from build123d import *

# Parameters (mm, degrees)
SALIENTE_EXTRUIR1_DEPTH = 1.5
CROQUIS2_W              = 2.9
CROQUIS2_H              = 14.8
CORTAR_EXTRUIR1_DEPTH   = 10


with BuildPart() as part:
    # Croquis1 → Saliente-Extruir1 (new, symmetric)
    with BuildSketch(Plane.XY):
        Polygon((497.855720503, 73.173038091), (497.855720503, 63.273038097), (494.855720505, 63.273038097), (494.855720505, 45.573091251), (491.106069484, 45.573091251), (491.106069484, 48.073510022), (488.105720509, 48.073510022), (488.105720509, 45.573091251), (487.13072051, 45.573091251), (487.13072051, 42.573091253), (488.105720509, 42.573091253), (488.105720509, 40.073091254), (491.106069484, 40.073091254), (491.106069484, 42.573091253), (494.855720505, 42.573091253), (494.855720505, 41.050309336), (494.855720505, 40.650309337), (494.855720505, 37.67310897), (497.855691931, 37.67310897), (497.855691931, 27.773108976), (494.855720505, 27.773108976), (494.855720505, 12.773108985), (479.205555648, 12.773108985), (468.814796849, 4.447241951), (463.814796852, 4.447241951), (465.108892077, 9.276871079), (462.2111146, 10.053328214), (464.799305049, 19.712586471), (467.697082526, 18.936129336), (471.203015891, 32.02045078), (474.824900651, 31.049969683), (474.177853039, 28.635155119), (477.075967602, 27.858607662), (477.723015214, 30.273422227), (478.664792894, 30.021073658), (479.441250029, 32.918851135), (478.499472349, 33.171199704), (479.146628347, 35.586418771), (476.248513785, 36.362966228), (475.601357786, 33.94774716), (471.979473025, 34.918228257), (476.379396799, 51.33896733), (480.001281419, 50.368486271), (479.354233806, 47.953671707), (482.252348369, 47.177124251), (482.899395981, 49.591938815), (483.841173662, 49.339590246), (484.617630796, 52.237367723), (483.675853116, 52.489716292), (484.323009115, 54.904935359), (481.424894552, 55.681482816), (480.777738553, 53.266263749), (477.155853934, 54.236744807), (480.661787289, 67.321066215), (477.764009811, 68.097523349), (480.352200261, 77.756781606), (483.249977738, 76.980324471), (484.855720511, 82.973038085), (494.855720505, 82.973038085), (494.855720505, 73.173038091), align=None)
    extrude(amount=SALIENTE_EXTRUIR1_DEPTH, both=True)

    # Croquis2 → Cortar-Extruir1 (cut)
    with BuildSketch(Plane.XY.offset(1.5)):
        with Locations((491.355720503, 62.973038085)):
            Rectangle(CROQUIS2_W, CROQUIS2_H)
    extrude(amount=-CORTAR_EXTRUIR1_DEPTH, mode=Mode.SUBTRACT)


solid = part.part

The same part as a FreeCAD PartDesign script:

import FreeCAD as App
import Part
import Sketcher
Q = App.Units.Quantity

doc = App.newDocument("Part")
body = doc.addObject("PartDesign::Body", "Body")

# Sketch on XY plane
sketch1 = body.newObject("Sketcher::SketchObject", "Sketch")
sketch1.AttachmentSupport = (doc.getObject("XY_Plane"), [""])
sketch1.MapMode = "FlatFace"
sketch1.addGeometry([
    Part.LineSegment(App.Vector(497.9, 63.3, 0), App.Vector(497.9, 73.2, 0)),  # 0
    Part.LineSegment(App.Vector(497.9, 73.2, 0), App.Vector(494.9, 73.2, 0)),  # 1
    Part.LineSegment(App.Vector(494.9, 73.2, 0), App.Vector(494.9, 83, 0)),  # 2
    Part.LineSegment(App.Vector(494.9, 83, 0), App.Vector(484.9, 83, 0)),  # 3
    Part.LineSegment(App.Vector(484.9, 83, 0), App.Vector(483.2, 77, 0)),  # 4
    Part.LineSegment(App.Vector(483.2, 77, 0), App.Vector(480.4, 77.8, 0)),  # 5
    Part.LineSegment(App.Vector(480.4, 77.8, 0), App.Vector(477.8, 68.1, 0)),  # 6
    Part.LineSegment(App.Vector(477.8, 68.1, 0), App.Vector(480.7, 67.3, 0)),  # 7
    Part.LineSegment(App.Vector(480.7, 67.3, 0), App.Vector(477.2, 54.2, 0)),  # 8
    Part.LineSegment(App.Vector(477.2, 54.2, 0), App.Vector(480.8, 53.3, 0)),  # 9
    Part.LineSegment(App.Vector(480.8, 53.3, 0), App.Vector(481.4, 55.7, 0)),  # 10
    Part.LineSegment(App.Vector(481.4, 55.7, 0), App.Vector(484.3, 54.9, 0)),  # 11
    Part.LineSegment(App.Vector(484.3, 54.9, 0), App.Vector(483.7, 52.5, 0)),  # 12
    Part.LineSegment(App.Vector(483.7, 52.5, 0), App.Vector(484.6, 52.2, 0)),  # 13
    Part.LineSegment(App.Vector(484.6, 52.2, 0), App.Vector(483.8, 49.3, 0)),  # 14
    Part.LineSegment(App.Vector(483.8, 49.3, 0), App.Vector(482.9, 49.6, 0)),  # 15
    Part.LineSegment(App.Vector(482.9, 49.6, 0), App.Vector(482.3, 47.2, 0)),  # 16
    Part.LineSegment(App.Vector(482.3, 47.2, 0), App.Vector(479.4, 48, 0)),  # 17
    Part.LineSegment(App.Vector(479.4, 48, 0), App.Vector(480, 50.4, 0)),  # 18
    Part.LineSegment(App.Vector(480, 50.4, 0), App.Vector(476.4, 51.3, 0)),  # 19
    Part.LineSegment(App.Vector(476.4, 51.3, 0), App.Vector(472, 34.9, 0)),  # 20
    Part.LineSegment(App.Vector(472, 34.9, 0), App.Vector(475.6, 33.9, 0)),  # 21
    Part.LineSegment(App.Vector(475.6, 33.9, 0), App.Vector(476.2, 36.4, 0)),  # 22
    Part.LineSegment(App.Vector(476.2, 36.4, 0), App.Vector(479.1, 35.6, 0)),  # 23
    Part.LineSegment(App.Vector(479.1, 35.6, 0), App.Vector(478.5, 33.2, 0)),  # 24
    Part.LineSegment(App.Vector(478.5, 33.2, 0), App.Vector(479.4, 32.9, 0)),  # 25
    Part.LineSegment(App.Vector(479.4, 32.9, 0), App.Vector(478.7, 30, 0)),  # 26
    Part.LineSegment(App.Vector(478.7, 30, 0), App.Vector(477.7, 30.3, 0)),  # 27
    Part.LineSegment(App.Vector(477.7, 30.3, 0), App.Vector(477.1, 27.9, 0)),  # 28
    Part.LineSegment(App.Vector(477.1, 27.9, 0), App.Vector(474.2, 28.6, 0)),  # 29
    Part.LineSegment(App.Vector(474.2, 28.6, 0), App.Vector(474.8, 31, 0)),  # 30
    Part.LineSegment(App.Vector(474.8, 31, 0), App.Vector(471.2, 32, 0)),  # 31
    Part.LineSegment(App.Vector(471.2, 32, 0), App.Vector(467.7, 18.9, 0)),  # 32
    Part.LineSegment(App.Vector(467.7, 18.9, 0), App.Vector(464.8, 19.7, 0)),  # 33
    Part.LineSegment(App.Vector(464.8, 19.7, 0), App.Vector(462.2, 10.1, 0)),  # 34
    Part.LineSegment(App.Vector(462.2, 10.1, 0), App.Vector(465.1, 9.3, 0)),  # 35
    Part.LineSegment(App.Vector(465.1, 9.3, 0), App.Vector(463.8, 4.4, 0)),  # 36
    Part.LineSegment(App.Vector(463.8, 4.4, 0), App.Vector(468.8, 4.4, 0)),  # 37
    Part.LineSegment(App.Vector(468.8, 4.4, 0), App.Vector(479.2, 12.8, 0)),  # 38
    Part.LineSegment(App.Vector(479.2, 12.8, 0), App.Vector(494.9, 12.8, 0)),  # 39
    Part.LineSegment(App.Vector(494.9, 12.8, 0), App.Vector(494.9, 27.8, 0)),  # 40
    Part.LineSegment(App.Vector(494.9, 27.8, 0), App.Vector(497.9, 27.8, 0)),  # 41
    Part.LineSegment(App.Vector(497.9, 27.8, 0), App.Vector(497.9, 37.7, 0)),  # 42
    Part.LineSegment(App.Vector(497.9, 37.7, 0), App.Vector(494.9, 37.7, 0)),  # 43
    Part.LineSegment(App.Vector(494.9, 37.7, 0), App.Vector(494.9, 42.6, 0)),  # 44
    Part.LineSegment(App.Vector(494.9, 42.6, 0), App.Vector(491.1, 42.6, 0)),  # 45
    Part.LineSegment(App.Vector(491.1, 42.6, 0), App.Vector(491.1, 40.1, 0)),  # 46
    Part.LineSegment(App.Vector(491.1, 40.1, 0), App.Vector(488.1, 40.1, 0)),  # 47
    Part.LineSegment(App.Vector(488.1, 40.1, 0), App.Vector(488.1, 42.6, 0)),  # 48
    Part.LineSegment(App.Vector(488.1, 42.6, 0), App.Vector(487.1, 42.6, 0)),  # 49
    Part.LineSegment(App.Vector(487.1, 42.6, 0), App.Vector(487.1, 45.6, 0)),  # 50
    Part.LineSegment(App.Vector(487.1, 45.6, 0), App.Vector(488.1, 45.6, 0)),  # 51
    Part.LineSegment(App.Vector(488.1, 45.6, 0), App.Vector(488.1, 48.1, 0)),  # 52
    Part.LineSegment(App.Vector(488.1, 48.1, 0), App.Vector(491.1, 48.1, 0)),  # 53
    Part.LineSegment(App.Vector(491.1, 48.1, 0), App.Vector(491.1, 45.6, 0)),  # 54
    Part.LineSegment(App.Vector(491.1, 45.6, 0), App.Vector(494.9, 45.6, 0)),  # 55
    Part.LineSegment(App.Vector(494.9, 45.6, 0), App.Vector(494.9, 63.3, 0)),  # 56
    Part.LineSegment(App.Vector(494.9, 63.3, 0), App.Vector(497.9, 63.3, 0)),  # 57
], False)
sketch1.addConstraint([
    Sketcher.Constraint("Coincident", 0, 2, 1, 1),
    Sketcher.Constraint("Coincident", 1, 2, 2, 1),
    Sketcher.Constraint("Coincident", 2, 2, 3, 1),
    Sketcher.Constraint("Coincident", 3, 2, 4, 1),
    Sketcher.Constraint("Coincident", 4, 2, 5, 1),
    Sketcher.Constraint("Coincident", 5, 2, 6, 1),
    Sketcher.Constraint("Coincident", 6, 2, 7, 1),
    Sketcher.Constraint("Coincident", 7, 2, 8, 1),
    Sketcher.Constraint("Coincident", 8, 2, 9, 1),
    Sketcher.Constraint("Coincident", 9, 2, 10, 1),
    Sketcher.Constraint("Coincident", 10, 2, 11, 1),
    Sketcher.Constraint("Coincident", 11, 2, 12, 1),
    Sketcher.Constraint("Coincident", 12, 2, 13, 1),
    Sketcher.Constraint("Coincident", 13, 2, 14, 1),
    Sketcher.Constraint("Coincident", 14, 2, 15, 1),
    Sketcher.Constraint("Coincident", 15, 2, 16, 1),
    Sketcher.Constraint("Coincident", 16, 2, 17, 1),
    Sketcher.Constraint("Coincident", 17, 2, 18, 1),
    Sketcher.Constraint("Coincident", 18, 2, 19, 1),
    Sketcher.Constraint("Coincident", 19, 2, 20, 1),
    Sketcher.Constraint("Coincident", 20, 2, 21, 1),
    Sketcher.Constraint("Coincident", 21, 2, 22, 1),
    Sketcher.Constraint("Coincident", 22, 2, 23, 1),
    Sketcher.Constraint("Coincident", 23, 2, 24, 1),
    Sketcher.Constraint("Coincident", 24, 2, 25, 1),
    Sketcher.Constraint("Coincident", 25, 2, 26, 1),
    Sketcher.Constraint("Coincident", 26, 2, 27, 1),
    Sketcher.Constraint("Coincident", 27, 2, 28, 1),
    Sketcher.Constraint("Coincident", 28, 2, 29, 1),
    Sketcher.Constraint("Coincident", 29, 2, 30, 1),
    Sketcher.Constraint("Coincident", 30, 2, 31, 1),
    Sketcher.Constraint("Coincident", 31, 2, 32, 1),
    Sketcher.Constraint("Coincident", 32, 2, 33, 1),
    Sketcher.Constraint("Coincident", 33, 2, 34, 1),
    Sketcher.Constraint("Coincident", 34, 2, 35, 1),
    Sketcher.Constraint("Coincident", 35, 2, 36, 1),
    Sketcher.Constraint("Coincident", 36, 2, 37, 1),
    Sketcher.Constraint("Coincident", 37, 2, 38, 1),
    Sketcher.Constraint("Coincident", 38, 2, 39, 1),
    Sketcher.Constraint("Coincident", 39, 2, 40, 1),
    Sketcher.Constraint("Coincident", 40, 2, 41, 1),
    Sketcher.Constraint("Coincident", 41, 2, 42, 1),
    Sketcher.Constraint("Coincident", 42, 2, 43, 1),
    Sketcher.Constraint("Coincident", 43, 2, 44, 1),
    Sketcher.Constraint("Coincident", 44, 2, 45, 1),
    Sketcher.Constraint("Coincident", 45, 2, 46, 1),
    Sketcher.Constraint("Coincident", 46, 2, 47, 1),
    Sketcher.Constraint("Coincident", 47, 2, 48, 1),
    Sketcher.Constraint("Coincident", 48, 2, 49, 1),
    Sketcher.Constraint("Coincident", 49, 2, 50, 1),
    Sketcher.Constraint("Coincident", 50, 2, 51, 1),
    Sketcher.Constraint("Coincident", 51, 2, 52, 1),
    Sketcher.Constraint("Coincident", 52, 2, 53, 1),
    Sketcher.Constraint("Coincident", 53, 2, 54, 1),
    Sketcher.Constraint("Coincident", 54, 2, 55, 1),
    Sketcher.Constraint("Coincident", 55, 2, 56, 1),
    Sketcher.Constraint("Coincident", 56, 2, 57, 1),
    Sketcher.Constraint("Coincident", 57, 2, 0, 1),
    Sketcher.Constraint("Vertical", 0),
    Sketcher.Constraint("Horizontal", 1),
    Sketcher.Constraint("Vertical", 2),
    Sketcher.Constraint("Horizontal", 3),
    Sketcher.Constraint("Horizontal", 37),
    Sketcher.Constraint("Horizontal", 39),
    Sketcher.Constraint("Vertical", 40),
    Sketcher.Constraint("Horizontal", 41),
    Sketcher.Constraint("Vertical", 42),
    Sketcher.Constraint("Horizontal", 43),
    Sketcher.Constraint("Vertical", 44),
    Sketcher.Constraint("Horizontal", 45),
    Sketcher.Constraint("Vertical", 46),
    Sketcher.Constraint("Horizontal", 47),
    Sketcher.Constraint("Vertical", 48),
    Sketcher.Constraint("Horizontal", 49),
    Sketcher.Constraint("Vertical", 50),
    Sketcher.Constraint("Horizontal", 51),
    Sketcher.Constraint("Vertical", 52),
    Sketcher.Constraint("Horizontal", 53),
    Sketcher.Constraint("Vertical", 54),
    Sketcher.Constraint("Horizontal", 55),
    Sketcher.Constraint("Vertical", 56),
    Sketcher.Constraint("Horizontal", 57),
    Sketcher.Constraint("Perpendicular", 4, 5),
    Sketcher.Constraint("Perpendicular", 5, 6),
    Sketcher.Constraint("Perpendicular", 6, 7),
    Sketcher.Constraint("Perpendicular", 7, 8),
    Sketcher.Constraint("Perpendicular", 8, 9),
    Sketcher.Constraint("Perpendicular", 9, 10),
    Sketcher.Constraint("Perpendicular", 10, 11),
    Sketcher.Constraint("Perpendicular", 11, 12),
    Sketcher.Constraint("Perpendicular", 12, 13),
    Sketcher.Constraint("Perpendicular", 13, 14),
    Sketcher.Constraint("Perpendicular", 14, 15),
    Sketcher.Constraint("Perpendicular", 15, 16),
    Sketcher.Constraint("Perpendicular", 16, 17),
    Sketcher.Constraint("Perpendicular", 17, 18),
    Sketcher.Constraint("Perpendicular", 18, 19),
    Sketcher.Constraint("Perpendicular", 19, 20),
    Sketcher.Constraint("Perpendicular", 20, 21),
    Sketcher.Constraint("Perpendicular", 21, 22),
    Sketcher.Constraint("Perpendicular", 22, 23),
    Sketcher.Constraint("Perpendicular", 23, 24),
    Sketcher.Constraint("Perpendicular", 24, 25),
    Sketcher.Constraint("Perpendicular", 25, 26),
    Sketcher.Constraint("Perpendicular", 26, 27),
    Sketcher.Constraint("Perpendicular", 27, 28),
    Sketcher.Constraint("Perpendicular", 28, 29),
    Sketcher.Constraint("Perpendicular", 29, 30),
    Sketcher.Constraint("Perpendicular", 30, 31),
    Sketcher.Constraint("Perpendicular", 31, 32),
    Sketcher.Constraint("Perpendicular", 32, 33),
    Sketcher.Constraint("Perpendicular", 33, 34),
    Sketcher.Constraint("Perpendicular", 34, 35),
    Sketcher.Constraint("Perpendicular", 35, 36),
    Sketcher.Constraint("Horizontal", 45, 2, 48, 2),
    Sketcher.Constraint("Horizontal", 51, 2, 54, 2),
    Sketcher.Constraint("Vertical", 2, 2, 39, 2),
    Sketcher.Constraint("Vertical", 40, 2, 43, 2),
    Sketcher.Constraint("Vertical", 48, 2, 51, 2),
    Sketcher.Constraint("Vertical", 46, 2, 53, 2),
    Sketcher.Constraint("Vertical", 44, 2, 55, 2),
    Sketcher.Constraint("Equal", 0, 42),
    Sketcher.Constraint("Equal", 57, 50),
    Sketcher.Constraint("Equal", 5, 7),
    Sketcher.Constraint("Equal", 10, 12),
    Sketcher.Constraint("Equal", 7, 14),
    Sketcher.Constraint("Equal", 13, 15),
    Sketcher.Constraint("Equal", 11, 17),
    Sketcher.Constraint("Equal", 16, 18),
    Sketcher.Constraint("Equal", 9, 19),
    Sketcher.Constraint("Equal", 19, 21),
    Sketcher.Constraint("Equal", 12, 22),
    Sketcher.Constraint("Equal", 17, 23),
    Sketcher.Constraint("Equal", 22, 24),
    Sketcher.Constraint("Equal", 15, 25),
    Sketcher.Constraint("Equal", 14, 26),
    Sketcher.Constraint("Equal", 25, 27),
    Sketcher.Constraint("Equal", 18, 28),
    Sketcher.Constraint("Equal", 23, 29),
    Sketcher.Constraint("Equal", 28, 30),
    Sketcher.Constraint("Equal", 21, 31),
    Sketcher.Constraint("Equal", 8, 32),
    Sketcher.Constraint("Equal", 26, 33),
    Sketcher.Constraint("Equal", 6, 34),
    Sketcher.Constraint("Equal", 33, 35),
    Sketcher.Constraint("DistanceX", 1, 2, 1, 1, 3.0),
    Sketcher.Constraint("DistanceX", 3, 2, 3, 1, 10.0),
    Sketcher.Constraint("DistanceX", 37, 1, 37, 2, 5.0),
    Sketcher.Constraint("DistanceY", 40, 1, 40, 2, 15.0),
    Sketcher.Constraint("Angle", 4, Q("-105 deg")),
    Sketcher.Constraint("Distance", 5, 3.0),
    Sketcher.Constraint("Distance", 6, 10.0),
    Sketcher.Constraint("Distance", 20, 17.0),
    Sketcher.Constraint("Distance", 36, 5.0),
    Sketcher.Constraint("DistanceY", 0, 1, 0, 2, 9.9),
    Sketcher.Constraint("DistanceY", 2, 1, 2, 2, 9.8),
    Sketcher.Constraint("DistanceY", 46, 2, 46, 1, 2.5),
    Sketcher.Constraint("Distance", 16, 2.5),
    Sketcher.Constraint("DistanceX", 49, 2, 49, 1, 0.975),
    Sketcher.Constraint("DistanceX", 8, 2, 12, 2, 6.519999),
    Sketcher.Constraint("DistanceX", 47, 2, 43, 2, 6.75),
    Sketcher.Constraint("Distance", 13, 0.975),
    Sketcher.Constraint("DistanceX", 6, 2, 11, 2, 6.558999),
    Sketcher.Constraint("DistanceX", 41, 1, 41, 2, 2.999971),
    Sketcher.Constraint("DistanceX", 45, 2, 45, 1, 3.749651),
    Sketcher.Constraint("DistanceY", 52, 1, 52, 2, 2.500419),
    Sketcher.Constraint("DistanceX", -1, 1, 5, 2, 480.3522),
    Sketcher.Constraint("DistanceY", -1, 1, 24, 2, 33.1712),
    Sketcher.Constraint("DistanceX", -1, 1, 30, 2, 474.824901),
    Sketcher.Constraint("DistanceX", 34, 2, 31, 2, 8.991901),
    Sketcher.Constraint("DistanceY", 38, 2, 28, 2, 15.085499),
    Sketcher.Constraint("DistanceX", 26, 2, 41, 2, 19.190899),
    Sketcher.Constraint("DistanceY", 44, 2, 14, 2, 6.766499),
    Sketcher.Constraint("Distance", 38, 13.314951),
])
pad1 = body.newObject("PartDesign::Pad", "Pad")
pad1.Profile = sketch1
pad1.Length = 3
pad1.Midplane = True

# Sketch on XY plane
sketch2 = body.newObject("Sketcher::SketchObject", "Sketch001")
sketch2.AttachmentSupport = (doc.getObject("XY_Plane"), [""])
sketch2.MapMode = "FlatFace"
sketch2.AttachmentOffset = App.Placement(App.Vector(0, 0, 1.5), App.Rotation())
sketch2.addGeometry([
    Part.LineSegment(App.Vector(489.9, 70.4, 0), App.Vector(489.9, 55.6, 0)),
    Part.LineSegment(App.Vector(489.9, 55.6, 0), App.Vector(492.8, 55.6, 0)),
    Part.LineSegment(App.Vector(492.8, 55.6, 0), App.Vector(492.8, 70.4, 0)),
    Part.LineSegment(App.Vector(492.8, 70.4, 0), App.Vector(489.9, 70.4, 0)),
], False)
sketch2.addConstraint([
    Sketcher.Constraint("Coincident", 0, 2, 1, 1),
    Sketcher.Constraint("Coincident", 1, 2, 2, 1),
    Sketcher.Constraint("Coincident", 2, 2, 3, 1),
    Sketcher.Constraint("Coincident", 3, 2, 0, 1),
    Sketcher.Constraint("Vertical", 0),
    Sketcher.Constraint("Horizontal", 1),
    Sketcher.Constraint("Vertical", 2),
    Sketcher.Constraint("Horizontal", 3),
    Sketcher.Constraint("DistanceX", 1, 1, 1, 2, 2.9),
    Sketcher.Constraint("DistanceY", 0, 2, 0, 1, 14.8),
    Sketcher.Constraint("DistanceX", -1, 1, 0, 2, 489.905721),
    Sketcher.Constraint("DistanceY", -1, 1, 0, 2, 55.573038),
])
pocket1 = body.newObject("PartDesign::Pocket", "Pocket")
pocket1.Profile = sketch2
pocket1.Length = 10

doc.recompute()
